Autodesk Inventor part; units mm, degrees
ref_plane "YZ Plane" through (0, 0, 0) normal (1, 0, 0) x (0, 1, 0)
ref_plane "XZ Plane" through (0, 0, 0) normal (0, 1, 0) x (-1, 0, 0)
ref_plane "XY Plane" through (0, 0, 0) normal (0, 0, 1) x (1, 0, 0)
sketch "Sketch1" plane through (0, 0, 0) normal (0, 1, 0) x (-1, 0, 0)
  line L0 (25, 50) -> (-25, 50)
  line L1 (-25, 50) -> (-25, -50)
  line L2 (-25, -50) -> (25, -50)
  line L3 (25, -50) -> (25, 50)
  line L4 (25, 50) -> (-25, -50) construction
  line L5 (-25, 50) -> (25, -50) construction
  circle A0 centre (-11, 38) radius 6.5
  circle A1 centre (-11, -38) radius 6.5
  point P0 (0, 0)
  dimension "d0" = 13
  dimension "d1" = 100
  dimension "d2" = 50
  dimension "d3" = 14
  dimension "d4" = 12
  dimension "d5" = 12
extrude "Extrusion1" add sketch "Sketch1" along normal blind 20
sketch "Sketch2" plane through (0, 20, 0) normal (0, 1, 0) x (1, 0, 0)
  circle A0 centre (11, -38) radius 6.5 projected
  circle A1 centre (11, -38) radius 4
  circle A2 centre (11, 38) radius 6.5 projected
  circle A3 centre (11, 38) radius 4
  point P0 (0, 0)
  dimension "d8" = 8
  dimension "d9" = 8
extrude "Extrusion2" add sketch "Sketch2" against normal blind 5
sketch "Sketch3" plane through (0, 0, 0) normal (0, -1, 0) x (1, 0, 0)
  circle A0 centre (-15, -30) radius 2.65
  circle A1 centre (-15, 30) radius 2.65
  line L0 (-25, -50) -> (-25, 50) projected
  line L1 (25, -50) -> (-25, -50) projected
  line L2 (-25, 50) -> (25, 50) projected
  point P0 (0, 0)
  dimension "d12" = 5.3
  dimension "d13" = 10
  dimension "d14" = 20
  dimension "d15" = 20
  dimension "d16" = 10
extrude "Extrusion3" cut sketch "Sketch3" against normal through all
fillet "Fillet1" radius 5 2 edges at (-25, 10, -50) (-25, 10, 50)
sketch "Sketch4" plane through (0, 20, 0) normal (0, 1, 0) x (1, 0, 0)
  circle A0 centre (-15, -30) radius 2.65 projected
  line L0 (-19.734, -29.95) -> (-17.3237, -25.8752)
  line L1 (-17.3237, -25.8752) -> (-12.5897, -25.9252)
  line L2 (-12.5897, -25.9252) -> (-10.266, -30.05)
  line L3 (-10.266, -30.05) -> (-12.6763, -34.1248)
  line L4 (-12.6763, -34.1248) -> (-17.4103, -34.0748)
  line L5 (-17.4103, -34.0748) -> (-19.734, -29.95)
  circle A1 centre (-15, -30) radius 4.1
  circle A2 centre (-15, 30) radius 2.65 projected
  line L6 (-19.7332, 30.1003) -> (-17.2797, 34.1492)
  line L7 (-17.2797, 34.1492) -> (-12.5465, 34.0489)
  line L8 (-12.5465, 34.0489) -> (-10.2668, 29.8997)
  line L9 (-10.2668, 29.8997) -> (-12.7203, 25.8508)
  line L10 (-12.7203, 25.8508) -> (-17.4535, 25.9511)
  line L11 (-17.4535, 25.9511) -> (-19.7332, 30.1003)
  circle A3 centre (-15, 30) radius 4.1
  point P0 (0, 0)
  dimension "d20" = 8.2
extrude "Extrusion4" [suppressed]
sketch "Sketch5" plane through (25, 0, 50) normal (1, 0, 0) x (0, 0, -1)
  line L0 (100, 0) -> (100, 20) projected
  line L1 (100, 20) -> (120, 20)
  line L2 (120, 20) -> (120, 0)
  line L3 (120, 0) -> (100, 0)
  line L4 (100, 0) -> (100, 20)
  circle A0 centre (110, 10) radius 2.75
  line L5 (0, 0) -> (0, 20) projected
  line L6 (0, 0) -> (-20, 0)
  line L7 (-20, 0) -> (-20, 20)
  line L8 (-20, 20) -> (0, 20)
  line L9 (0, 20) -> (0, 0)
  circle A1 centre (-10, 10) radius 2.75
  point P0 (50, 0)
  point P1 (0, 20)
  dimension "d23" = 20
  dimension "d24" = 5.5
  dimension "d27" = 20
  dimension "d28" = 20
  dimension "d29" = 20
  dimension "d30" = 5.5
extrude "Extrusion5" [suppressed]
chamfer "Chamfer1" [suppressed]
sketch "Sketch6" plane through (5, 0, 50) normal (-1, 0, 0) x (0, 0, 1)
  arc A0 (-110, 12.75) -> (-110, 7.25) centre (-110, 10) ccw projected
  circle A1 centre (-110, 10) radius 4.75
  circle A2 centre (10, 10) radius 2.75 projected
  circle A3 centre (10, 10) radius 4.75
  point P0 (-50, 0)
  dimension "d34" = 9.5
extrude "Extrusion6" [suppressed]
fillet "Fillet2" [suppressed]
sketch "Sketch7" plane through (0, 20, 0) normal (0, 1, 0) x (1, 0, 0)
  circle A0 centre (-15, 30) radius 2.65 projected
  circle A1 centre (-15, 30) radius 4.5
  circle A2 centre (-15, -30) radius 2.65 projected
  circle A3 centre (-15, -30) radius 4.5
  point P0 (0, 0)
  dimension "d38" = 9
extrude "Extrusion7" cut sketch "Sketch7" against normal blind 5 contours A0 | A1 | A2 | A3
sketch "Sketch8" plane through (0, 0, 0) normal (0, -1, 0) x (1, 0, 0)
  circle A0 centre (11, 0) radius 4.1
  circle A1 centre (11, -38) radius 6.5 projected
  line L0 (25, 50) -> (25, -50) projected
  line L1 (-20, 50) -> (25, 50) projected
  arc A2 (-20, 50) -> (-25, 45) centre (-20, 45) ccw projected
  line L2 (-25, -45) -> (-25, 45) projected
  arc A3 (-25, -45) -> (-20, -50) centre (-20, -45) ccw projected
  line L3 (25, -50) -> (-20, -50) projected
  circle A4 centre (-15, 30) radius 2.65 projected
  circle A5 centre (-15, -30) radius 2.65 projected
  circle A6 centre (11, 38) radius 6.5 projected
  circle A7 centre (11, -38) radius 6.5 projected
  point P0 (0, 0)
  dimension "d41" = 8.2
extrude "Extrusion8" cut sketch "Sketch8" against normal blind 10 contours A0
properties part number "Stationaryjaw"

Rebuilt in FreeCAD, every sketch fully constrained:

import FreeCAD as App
import Part
import Sketcher
Q = App.Units.Quantity


def edges_at(feature, points):
    """Names of the edges that pass closest to the given points."""
    edges = feature.Shape.Edges
    near = lambda p: min(range(len(edges)), key=lambda i: edges[i].distToShape(Part.Vertex(*p))[0])
    return sorted({f"Edge{near(p) + 1}" for p in points})

doc = App.newDocument("Part")
params = doc.addObject("Spreadsheet::Sheet", "Params")
for row, (alias, value) in enumerate([
    ("sketch1_diameter", "13 mm"),
    ("sketch1_width", "50 mm"),
    ("sketch1_height", "100 mm"),
    ("pad1_length", "20 mm"),
    ("sketch2_diameter", "8 mm"),
    ("sketch2_diameter2", "13 mm"),
    ("pad2_length", "5 mm"),
    ("sketch3_diameter", "5.3 mm"),
    ("fillet_radius", "5 mm"),
    ("sketch4_diameter", "9 mm"),
    ("pocket2_length", "5 mm"),
    ("sketch5_diameter", "8.2 mm"),
    ("pocket3_length", "10 mm"),
], start=1):
    params.set(f"A{row}", alias)
    params.set(f"B{row}", "=" + value)
    params.setAlias(f"B{row}", alias)

body = doc.addObject("PartDesign::Body", "Body")

sketch1 = doc.addObject("Sketcher::SketchObject", "Sketch")
body.addObject(sketch1)
sketch1.AttachmentSupport = (doc.XZ_Plane, [""])
sketch1.MapMode = "FlatFace"
sketch1.addGeometry(Part.LineSegment(App.Vector(-25, -50, 0), App.Vector(-25, 50, 0)), False)
sketch1.addGeometry(Part.LineSegment(App.Vector(-25, 50, 0), App.Vector(25, 50, 0)), False)
sketch1.addGeometry(Part.LineSegment(App.Vector(25, 50, 0), App.Vector(25, -50, 0)), False)
sketch1.addGeometry(Part.LineSegment(App.Vector(25, -50, 0), App.Vector(-25, -50, 0)), False)
sketch1.addGeometry(Part.Circle(App.Vector(11, -38, 0), App.Vector(0, 0, 1), 6), False)
sketch1.addGeometry(Part.Circle(App.Vector(11, 38, 0), App.Vector(0, 0, 1), 6), False)
sketch1.addConstraint(Sketcher.Constraint("Coincident", 0, 2, 1, 1))
sketch1.addConstraint(Sketcher.Constraint("Coincident", 1, 2, 2, 1))
sketch1.addConstraint(Sketcher.Constraint("Coincident", 2, 2, 3, 1))
sketch1.addConstraint(Sketcher.Constraint("Coincident", 3, 2, 0, 1))
sketch1.addConstraint(Sketcher.Constraint("Vertical", 0))
sketch1.addConstraint(Sketcher.Constraint("Horizontal", 1))
sketch1.addConstraint(Sketcher.Constraint("Vertical", 2))
sketch1.addConstraint(Sketcher.Constraint("Horizontal", 3))
sketch1.addConstraint(Sketcher.Constraint("Equal", 4, 5))
sketch1.addConstraint(Sketcher.Constraint("Symmetric", 0, 2, 2, 2, -1, 1))
sketch1.addConstraint(Sketcher.Constraint("Symmetric", 4, 3, 5, 3, -1))
sketch1.addConstraint(Sketcher.Constraint("Diameter", 4, Q("13 mm")))
sketch1.addConstraint(Sketcher.Constraint("DistanceX", 1, 1, 1, 2, Q("50 mm")))
sketch1.addConstraint(Sketcher.Constraint("DistanceY", 0, 1, 0, 2, Q("100 mm")))
sketch1.addConstraint(Sketcher.Constraint("DistanceY", 5, 3, 0, 2, Q("12 mm")))
sketch1.addConstraint(Sketcher.Constraint("DistanceX", 5, 3, 1, 2, Q("14 mm")))
sketch1.setExpression("Constraints[11]", "Params.sketch1_diameter")
sketch1.setExpression("Constraints[12]", "Params.sketch1_width")
sketch1.setExpression("Constraints[13]", "Params.sketch1_height")
pad1 = doc.addObject("PartDesign::Pad", "Pad")
body.addObject(pad1)
pad1.Profile = sketch1
pad1.setExpression("Length", "Params.pad1_length")
pad1.Reversed = True

sketch2 = doc.addObject("Sketcher::SketchObject", "Sketch001")
body.addObject(sketch2)
sketch2.AttachmentSupport = (doc.XZ_Plane, [""])
sketch2.MapMode = "FlatFace"
sketch2.AttachmentOffset = App.Placement(App.Vector(0, 0, -20), App.Rotation())
sketch2.addGeometry(Part.Circle(App.Vector(11, 38, 0), App.Vector(0, 0, 1), 6.5), False)
sketch2.addGeometry(Part.Circle(App.Vector(11, 38, 0), App.Vector(0, 0, 1), 4), False)
sketch2.addGeometry(Part.Circle(App.Vector(11, -38, 0), App.Vector(0, 0, 1), 6.5), False)
sketch2.addGeometry(Part.Circle(App.Vector(11, -38, 0), App.Vector(0, 0, 1), 4), False)
sketch2.addConstraint(Sketcher.Constraint("Coincident", 1, 3, 0, 3))
sketch2.addConstraint(Sketcher.Constraint("Coincident", 3, 3, 2, 3))
sketch2.addConstraint(Sketcher.Constraint("Equal", 0, 2))
sketch2.addConstraint(Sketcher.Constraint("Equal", 1, 3))
sketch2.addConstraint(Sketcher.Constraint("Symmetric", 0, 3, 2, 3, -1))
sketch2.addConstraint(Sketcher.Constraint("Diameter", 1, Q("8 mm")))
sketch2.addConstraint(Sketcher.Constraint("Diameter", 0, Q("13 mm")))
sketch2.addConstraint(Sketcher.Constraint("DistanceX", -1, 1, 0, 3, Q("11 mm")))
sketch2.addConstraint(Sketcher.Constraint("DistanceY", -1, 1, 0, 3, Q("38 mm")))
sketch2.setExpression("Constraints[5]", "Params.sketch2_diameter")
sketch2.setExpression("Constraints[6]", "Params.sketch2_diameter2")
pad2 = doc.addObject("PartDesign::Pad", "Pad001")
body.addObject(pad2)
pad2.Profile = sketch2
pad2.setExpression("Length", "Params.pad2_length")

sketch3 = doc.addObject("Sketcher::SketchObject", "Sketch002")
body.addObject(sketch3)
sketch3.AttachmentSupport = (doc.XZ_Plane, [""])
sketch3.MapMode = "FlatFace"
sketch3.addGeometry(Part.Circle(App.Vector(-15, -30, 0), App.Vector(0, 0, 1), 2.6), False)
sketch3.addGeometry(Part.Circle(App.Vector(-15, 30, 0), App.Vector(0, 0, 1), 2.6), False)
sketch3.addConstraint(Sketcher.Constraint("Equal", 0, 1))
sketch3.addConstraint(Sketcher.Constraint("Symmetric", 0, 3, 1, 3, -1))
sketch3.addConstraint(Sketcher.Constraint("Diameter", 0, Q("5.3 mm")))
sketch3.addConstraint(Sketcher.Constraint("DistanceX", 0, 3, -1, 1, Q("15 mm")))
sketch3.addConstraint(Sketcher.Constraint("DistanceY", 0, 3, -1, 1, Q("30 mm")))
sketch3.setExpression("Constraints[2]", "Params.sketch3_diameter")
pocket1 = doc.addObject("PartDesign::Pocket", "Pocket")
body.addObject(pocket1)
pocket1.Profile = sketch3
pocket1.Type = "ThroughAll"
doc.recompute()

fillet = doc.addObject("PartDesign::Fillet", "Fillet")
body.addObject(fillet)
fillet.Base = (pocket1, edges_at(pocket1, [(-25, 10, -50), (-25, 10, 50)]))
fillet.setExpression("Radius", "Params.fillet_radius")

sketch4 = doc.addObject("Sketcher::SketchObject", "Sketch003")
body.addObject(sketch4)
sketch4.AttachmentSupport = (doc.XZ_Plane, [""])
sketch4.MapMode = "FlatFace"
sketch4.AttachmentOffset = App.Placement(App.Vector(0, 0, -20), App.Rotation())
sketch4.addGeometry(Part.Circle(App.Vector(-15, -30, 0), App.Vector(0, 0, 1), 4.5), False)
sketch4.addGeometry(Part.Circle(App.Vector(-15, 30, 0), App.Vector(0, 0, 1), 4.5), False)
sketch4.addConstraint(Sketcher.Constraint("Equal", 0, 1))
sketch4.addConstraint(Sketcher.Constraint("Symmetric", 0, 3, 1, 3, -1))
sketch4.addConstraint(Sketcher.Constraint("Diameter", 0, Q("9 mm")))
sketch4.addConstraint(Sketcher.Constraint("DistanceX", 0, 3, -1, 1, Q("15 mm")))
sketch4.addConstraint(Sketcher.Constraint("DistanceY", 0, 3, -1, 1, Q("30 mm")))
sketch4.setExpression("Constraints[2]", "Params.sketch4_diameter")
pocket2 = doc.addObject("PartDesign::Pocket", "Pocket001")
body.addObject(pocket2)
pocket2.Profile = sketch4
pocket2.setExpression("Length", "Params.pocket2_length")
pocket2.Reversed = True

sketch5 = doc.addObject("Sketcher::SketchObject", "Sketch004")
body.addObject(sketch5)
sketch5.AttachmentSupport = (doc.XZ_Plane, [""])
sketch5.MapMode = "FlatFace"
sketch5.addGeometry(Part.Circle(App.Vector(11, 0, 0), App.Vector(0, 0, 1), 4.1), False)
sketch5.addConstraint(Sketcher.Constraint("PointOnObject", 0, 3, -1))
sketch5.addConstraint(Sketcher.Constraint("Diameter", 0, Q("8.2 mm")))
sketch5.addConstraint(Sketcher.Constraint("DistanceX", -1, 1, 0, 3, Q("11 mm")))
sketch5.setExpression("Constraints[1]", "Params.sketch5_diameter")
pocket3 = doc.addObject("PartDesign::Pocket", "Pocket002")
body.addObject(pocket3)
pocket3.Profile = sketch5
pocket3.setExpression("Length", "Params.pocket3_length")

doc.recompute()
